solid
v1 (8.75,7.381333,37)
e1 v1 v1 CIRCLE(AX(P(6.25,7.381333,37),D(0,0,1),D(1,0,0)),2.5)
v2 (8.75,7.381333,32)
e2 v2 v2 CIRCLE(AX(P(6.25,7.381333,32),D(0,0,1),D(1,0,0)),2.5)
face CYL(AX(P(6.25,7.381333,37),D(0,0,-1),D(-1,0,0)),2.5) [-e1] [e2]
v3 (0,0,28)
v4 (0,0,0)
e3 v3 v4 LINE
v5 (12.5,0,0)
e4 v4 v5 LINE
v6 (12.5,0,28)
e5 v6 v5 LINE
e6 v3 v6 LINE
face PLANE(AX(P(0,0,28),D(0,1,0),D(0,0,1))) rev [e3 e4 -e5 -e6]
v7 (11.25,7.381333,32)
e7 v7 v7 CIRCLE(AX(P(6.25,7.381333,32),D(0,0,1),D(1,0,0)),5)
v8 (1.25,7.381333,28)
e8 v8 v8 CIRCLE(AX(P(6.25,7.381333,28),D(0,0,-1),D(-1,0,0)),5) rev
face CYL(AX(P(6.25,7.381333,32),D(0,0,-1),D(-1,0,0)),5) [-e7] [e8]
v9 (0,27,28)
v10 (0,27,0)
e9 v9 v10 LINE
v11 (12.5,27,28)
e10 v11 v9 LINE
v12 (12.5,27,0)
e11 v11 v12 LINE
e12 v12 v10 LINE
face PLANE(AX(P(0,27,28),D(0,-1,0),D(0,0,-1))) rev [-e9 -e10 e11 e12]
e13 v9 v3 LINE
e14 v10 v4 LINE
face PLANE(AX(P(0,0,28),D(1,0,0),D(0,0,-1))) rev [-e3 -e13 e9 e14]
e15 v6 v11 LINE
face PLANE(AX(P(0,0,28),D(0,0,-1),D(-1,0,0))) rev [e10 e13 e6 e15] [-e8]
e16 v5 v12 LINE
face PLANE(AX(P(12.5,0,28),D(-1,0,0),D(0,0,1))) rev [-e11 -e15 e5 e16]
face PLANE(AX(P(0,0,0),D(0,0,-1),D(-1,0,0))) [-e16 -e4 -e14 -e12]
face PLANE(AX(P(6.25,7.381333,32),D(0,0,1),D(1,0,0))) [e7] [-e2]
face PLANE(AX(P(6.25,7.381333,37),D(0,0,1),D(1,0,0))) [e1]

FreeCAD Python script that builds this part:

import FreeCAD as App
import Part
import Sketcher
from FreeCAD import Vector
Q = App.Units.Quantity

doc = App.newDocument("Part")
body = doc.addObject("PartDesign::Body", "Body")

sketch1 = body.newObject("Sketcher::SketchObject", "Sketch")
sketch1.AttachmentSupport = (doc.getObject("XY_Plane"), [""])
sketch1.MapMode = "FlatFace"
sketch1.addGeometry(Part.LineSegment(Vector(0, 27, 0), Vector(0, 0, 0)), False)
sketch1.addGeometry(Part.LineSegment(Vector(0, 0, 0), Vector(12, 0, 0)), False)
sketch1.addGeometry(Part.LineSegment(Vector(12, 0, 0), Vector(12, 27, 0)), False)
sketch1.addGeometry(Part.LineSegment(Vector(12, 27, 0), Vector(0, 27, 0)), False)
sketch1.addConstraint(Sketcher.Constraint("Coincident", 0, 2, 1, 1))
sketch1.addConstraint(Sketcher.Constraint("Coincident", 1, 2, 2, 1))
sketch1.addConstraint(Sketcher.Constraint("Coincident", 2, 2, 3, 1))
sketch1.addConstraint(Sketcher.Constraint("Coincident", 3, 2, 0, 1))
sketch1.addConstraint(Sketcher.Constraint("Vertical", 0))
sketch1.addConstraint(Sketcher.Constraint("Horizontal", 1))
sketch1.addConstraint(Sketcher.Constraint("Vertical", 2))
sketch1.addConstraint(Sketcher.Constraint("Horizontal", 3))
sketch1.addConstraint(Sketcher.Constraint("Coincident", 0, 2, -1, 1))
sketch1.addConstraint(Sketcher.Constraint("DistanceY", 0, 2, 0, 1, Q("27 mm")))
sketch1.addConstraint(Sketcher.Constraint("DistanceX", 1, 1, 1, 2, Q("12.5 mm")))
pad1 = body.newObject("PartDesign::Pad", "Pad")
pad1.Profile = sketch1
pad1.Length = 28

sketch2 = body.newObject("Sketcher::SketchObject", "Sketch001")
sketch2.AttachmentSupport = (doc.getObject("XY_Plane"), [""])
sketch2.MapMode = "FlatFace"
sketch2.AttachmentOffset = App.Placement(Vector(0, 0, 28), App.Rotation())
sketch2.addGeometry(Part.Circle(Vector(6, 7, 0), Vector(0, 0, 1), 5), False)
sketch2.addConstraint(Sketcher.Constraint("Diameter", 0, Q("10 mm")))
sketch2.addConstraint(Sketcher.Constraint("DistanceX", -1, 1, 0, 3, Q("6.25 mm")))
sketch2.addConstraint(Sketcher.Constraint("DistanceY", -1, 1, 0, 3, Q("7.381333 mm")))
pad2 = body.newObject("PartDesign::Pad", "Pad001")
pad2.Profile = sketch2
pad2.Length = 4

sketch3 = body.newObject("Sketcher::SketchObject", "Sketch002")
sketch3.AttachmentSupport = (doc.getObject("XY_Plane"), [""])
sketch3.MapMode = "FlatFace"
sketch3.AttachmentOffset = App.Placement(Vector(0, 0, 32), App.Rotation())
sketch3.addGeometry(Part.Circle(Vector(6.2, 7.4, 0), Vector(0, 0, 1), 2.5), False)
sketch3.addConstraint(Sketcher.Constraint("Diameter", 0, Q("5 mm")))
sketch3.addConstraint(Sketcher.Constraint("DistanceX", -1, 1, 0, 3, Q("6.25 mm")))
sketch3.addConstraint(Sketcher.Constraint("DistanceY", -1, 1, 0, 3, Q("7.381333 mm")))
pad3 = body.newObject("PartDesign::Pad", "Pad002")
pad3.Profile = sketch3
pad3.Length = 5

doc.recompute()
